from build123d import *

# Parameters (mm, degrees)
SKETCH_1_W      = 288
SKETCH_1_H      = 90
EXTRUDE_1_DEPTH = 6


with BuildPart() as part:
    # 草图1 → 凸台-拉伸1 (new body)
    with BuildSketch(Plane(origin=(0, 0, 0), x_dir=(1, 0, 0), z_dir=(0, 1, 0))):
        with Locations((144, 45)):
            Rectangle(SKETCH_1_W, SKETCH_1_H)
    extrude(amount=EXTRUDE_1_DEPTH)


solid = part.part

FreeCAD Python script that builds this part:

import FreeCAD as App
import Part
import Sketcher
Q = App.Units.Quantity

doc = App.newDocument("Part")
params = doc.addObject("Spreadsheet::Sheet", "Params")
for row, (alias, value) in enumerate([
    ("sketch1_width", "288 mm"),
    ("sketch1_height", "90 mm"),
    ("pad1_length", "6 mm"),
], start=1):
    params.set(f"A{row}", alias)
    params.set(f"B{row}", "=" + value)
    params.setAlias(f"B{row}", alias)

body = doc.addObject("PartDesign::Body", "Body")

sketch1 = body.newObject("Sketcher::SketchObject", "Sketch")
sketch1.AttachmentSupport = (doc.getObject("XZ_Plane"), [""])
sketch1.MapMode = "FlatFace"
sketch1.addGeometry(Part.LineSegment(App.Vector(0, -90, 0), App.Vector(0, 0, 0)), False)
sketch1.addGeometry(Part.LineSegment(App.Vector(0, 0, 0), App.Vector(288, 0, 0)), False)
sketch1.addGeometry(Part.LineSegment(App.Vector(288, 0, 0), App.Vector(288, -90, 0)), False)
sketch1.addGeometry(Part.LineSegment(App.Vector(288, -90, 0), App.Vector(0, -90, 0)), False)
sketch1.addConstraint(Sketcher.Constraint("Coincident", 0, 2, 1, 1))
sketch1.addConstraint(Sketcher.Constraint("Coincident", 1, 2, 2, 1))
sketch1.addConstraint(Sketcher.Constraint("Coincident", 2, 2, 3, 1))
sketch1.addConstraint(Sketcher.Constraint("Coincident", 3, 2, 0, 1))
sketch1.addConstraint(Sketcher.Constraint("Vertical", 0))
sketch1.addConstraint(Sketcher.Constraint("Horizontal", 1))
sketch1.addConstraint(Sketcher.Constraint("Vertical", 2))
sketch1.addConstraint(Sketcher.Constraint("Horizontal", 3))
sketch1.addConstraint(Sketcher.Constraint("Coincident", 0, 2, -1, 1))
sketch1.addConstraint(Sketcher.Constraint("DistanceX", 1, 1, 1, 2, Q("288 mm")))
sketch1.addConstraint(Sketcher.Constraint("DistanceY", 0, 1, 0, 2, Q("90 mm")))
sketch1.setExpression("Constraints[9]", "Params.sketch1_width")
sketch1.setExpression("Constraints[10]", "Params.sketch1_height")
pad1 = body.newObject("PartDesign::Pad", "Pad")
pad1.Profile = sketch1
pad1.setExpression("Length", "Params.pad1_length")
pad1.Reversed = True

doc.recompute()
